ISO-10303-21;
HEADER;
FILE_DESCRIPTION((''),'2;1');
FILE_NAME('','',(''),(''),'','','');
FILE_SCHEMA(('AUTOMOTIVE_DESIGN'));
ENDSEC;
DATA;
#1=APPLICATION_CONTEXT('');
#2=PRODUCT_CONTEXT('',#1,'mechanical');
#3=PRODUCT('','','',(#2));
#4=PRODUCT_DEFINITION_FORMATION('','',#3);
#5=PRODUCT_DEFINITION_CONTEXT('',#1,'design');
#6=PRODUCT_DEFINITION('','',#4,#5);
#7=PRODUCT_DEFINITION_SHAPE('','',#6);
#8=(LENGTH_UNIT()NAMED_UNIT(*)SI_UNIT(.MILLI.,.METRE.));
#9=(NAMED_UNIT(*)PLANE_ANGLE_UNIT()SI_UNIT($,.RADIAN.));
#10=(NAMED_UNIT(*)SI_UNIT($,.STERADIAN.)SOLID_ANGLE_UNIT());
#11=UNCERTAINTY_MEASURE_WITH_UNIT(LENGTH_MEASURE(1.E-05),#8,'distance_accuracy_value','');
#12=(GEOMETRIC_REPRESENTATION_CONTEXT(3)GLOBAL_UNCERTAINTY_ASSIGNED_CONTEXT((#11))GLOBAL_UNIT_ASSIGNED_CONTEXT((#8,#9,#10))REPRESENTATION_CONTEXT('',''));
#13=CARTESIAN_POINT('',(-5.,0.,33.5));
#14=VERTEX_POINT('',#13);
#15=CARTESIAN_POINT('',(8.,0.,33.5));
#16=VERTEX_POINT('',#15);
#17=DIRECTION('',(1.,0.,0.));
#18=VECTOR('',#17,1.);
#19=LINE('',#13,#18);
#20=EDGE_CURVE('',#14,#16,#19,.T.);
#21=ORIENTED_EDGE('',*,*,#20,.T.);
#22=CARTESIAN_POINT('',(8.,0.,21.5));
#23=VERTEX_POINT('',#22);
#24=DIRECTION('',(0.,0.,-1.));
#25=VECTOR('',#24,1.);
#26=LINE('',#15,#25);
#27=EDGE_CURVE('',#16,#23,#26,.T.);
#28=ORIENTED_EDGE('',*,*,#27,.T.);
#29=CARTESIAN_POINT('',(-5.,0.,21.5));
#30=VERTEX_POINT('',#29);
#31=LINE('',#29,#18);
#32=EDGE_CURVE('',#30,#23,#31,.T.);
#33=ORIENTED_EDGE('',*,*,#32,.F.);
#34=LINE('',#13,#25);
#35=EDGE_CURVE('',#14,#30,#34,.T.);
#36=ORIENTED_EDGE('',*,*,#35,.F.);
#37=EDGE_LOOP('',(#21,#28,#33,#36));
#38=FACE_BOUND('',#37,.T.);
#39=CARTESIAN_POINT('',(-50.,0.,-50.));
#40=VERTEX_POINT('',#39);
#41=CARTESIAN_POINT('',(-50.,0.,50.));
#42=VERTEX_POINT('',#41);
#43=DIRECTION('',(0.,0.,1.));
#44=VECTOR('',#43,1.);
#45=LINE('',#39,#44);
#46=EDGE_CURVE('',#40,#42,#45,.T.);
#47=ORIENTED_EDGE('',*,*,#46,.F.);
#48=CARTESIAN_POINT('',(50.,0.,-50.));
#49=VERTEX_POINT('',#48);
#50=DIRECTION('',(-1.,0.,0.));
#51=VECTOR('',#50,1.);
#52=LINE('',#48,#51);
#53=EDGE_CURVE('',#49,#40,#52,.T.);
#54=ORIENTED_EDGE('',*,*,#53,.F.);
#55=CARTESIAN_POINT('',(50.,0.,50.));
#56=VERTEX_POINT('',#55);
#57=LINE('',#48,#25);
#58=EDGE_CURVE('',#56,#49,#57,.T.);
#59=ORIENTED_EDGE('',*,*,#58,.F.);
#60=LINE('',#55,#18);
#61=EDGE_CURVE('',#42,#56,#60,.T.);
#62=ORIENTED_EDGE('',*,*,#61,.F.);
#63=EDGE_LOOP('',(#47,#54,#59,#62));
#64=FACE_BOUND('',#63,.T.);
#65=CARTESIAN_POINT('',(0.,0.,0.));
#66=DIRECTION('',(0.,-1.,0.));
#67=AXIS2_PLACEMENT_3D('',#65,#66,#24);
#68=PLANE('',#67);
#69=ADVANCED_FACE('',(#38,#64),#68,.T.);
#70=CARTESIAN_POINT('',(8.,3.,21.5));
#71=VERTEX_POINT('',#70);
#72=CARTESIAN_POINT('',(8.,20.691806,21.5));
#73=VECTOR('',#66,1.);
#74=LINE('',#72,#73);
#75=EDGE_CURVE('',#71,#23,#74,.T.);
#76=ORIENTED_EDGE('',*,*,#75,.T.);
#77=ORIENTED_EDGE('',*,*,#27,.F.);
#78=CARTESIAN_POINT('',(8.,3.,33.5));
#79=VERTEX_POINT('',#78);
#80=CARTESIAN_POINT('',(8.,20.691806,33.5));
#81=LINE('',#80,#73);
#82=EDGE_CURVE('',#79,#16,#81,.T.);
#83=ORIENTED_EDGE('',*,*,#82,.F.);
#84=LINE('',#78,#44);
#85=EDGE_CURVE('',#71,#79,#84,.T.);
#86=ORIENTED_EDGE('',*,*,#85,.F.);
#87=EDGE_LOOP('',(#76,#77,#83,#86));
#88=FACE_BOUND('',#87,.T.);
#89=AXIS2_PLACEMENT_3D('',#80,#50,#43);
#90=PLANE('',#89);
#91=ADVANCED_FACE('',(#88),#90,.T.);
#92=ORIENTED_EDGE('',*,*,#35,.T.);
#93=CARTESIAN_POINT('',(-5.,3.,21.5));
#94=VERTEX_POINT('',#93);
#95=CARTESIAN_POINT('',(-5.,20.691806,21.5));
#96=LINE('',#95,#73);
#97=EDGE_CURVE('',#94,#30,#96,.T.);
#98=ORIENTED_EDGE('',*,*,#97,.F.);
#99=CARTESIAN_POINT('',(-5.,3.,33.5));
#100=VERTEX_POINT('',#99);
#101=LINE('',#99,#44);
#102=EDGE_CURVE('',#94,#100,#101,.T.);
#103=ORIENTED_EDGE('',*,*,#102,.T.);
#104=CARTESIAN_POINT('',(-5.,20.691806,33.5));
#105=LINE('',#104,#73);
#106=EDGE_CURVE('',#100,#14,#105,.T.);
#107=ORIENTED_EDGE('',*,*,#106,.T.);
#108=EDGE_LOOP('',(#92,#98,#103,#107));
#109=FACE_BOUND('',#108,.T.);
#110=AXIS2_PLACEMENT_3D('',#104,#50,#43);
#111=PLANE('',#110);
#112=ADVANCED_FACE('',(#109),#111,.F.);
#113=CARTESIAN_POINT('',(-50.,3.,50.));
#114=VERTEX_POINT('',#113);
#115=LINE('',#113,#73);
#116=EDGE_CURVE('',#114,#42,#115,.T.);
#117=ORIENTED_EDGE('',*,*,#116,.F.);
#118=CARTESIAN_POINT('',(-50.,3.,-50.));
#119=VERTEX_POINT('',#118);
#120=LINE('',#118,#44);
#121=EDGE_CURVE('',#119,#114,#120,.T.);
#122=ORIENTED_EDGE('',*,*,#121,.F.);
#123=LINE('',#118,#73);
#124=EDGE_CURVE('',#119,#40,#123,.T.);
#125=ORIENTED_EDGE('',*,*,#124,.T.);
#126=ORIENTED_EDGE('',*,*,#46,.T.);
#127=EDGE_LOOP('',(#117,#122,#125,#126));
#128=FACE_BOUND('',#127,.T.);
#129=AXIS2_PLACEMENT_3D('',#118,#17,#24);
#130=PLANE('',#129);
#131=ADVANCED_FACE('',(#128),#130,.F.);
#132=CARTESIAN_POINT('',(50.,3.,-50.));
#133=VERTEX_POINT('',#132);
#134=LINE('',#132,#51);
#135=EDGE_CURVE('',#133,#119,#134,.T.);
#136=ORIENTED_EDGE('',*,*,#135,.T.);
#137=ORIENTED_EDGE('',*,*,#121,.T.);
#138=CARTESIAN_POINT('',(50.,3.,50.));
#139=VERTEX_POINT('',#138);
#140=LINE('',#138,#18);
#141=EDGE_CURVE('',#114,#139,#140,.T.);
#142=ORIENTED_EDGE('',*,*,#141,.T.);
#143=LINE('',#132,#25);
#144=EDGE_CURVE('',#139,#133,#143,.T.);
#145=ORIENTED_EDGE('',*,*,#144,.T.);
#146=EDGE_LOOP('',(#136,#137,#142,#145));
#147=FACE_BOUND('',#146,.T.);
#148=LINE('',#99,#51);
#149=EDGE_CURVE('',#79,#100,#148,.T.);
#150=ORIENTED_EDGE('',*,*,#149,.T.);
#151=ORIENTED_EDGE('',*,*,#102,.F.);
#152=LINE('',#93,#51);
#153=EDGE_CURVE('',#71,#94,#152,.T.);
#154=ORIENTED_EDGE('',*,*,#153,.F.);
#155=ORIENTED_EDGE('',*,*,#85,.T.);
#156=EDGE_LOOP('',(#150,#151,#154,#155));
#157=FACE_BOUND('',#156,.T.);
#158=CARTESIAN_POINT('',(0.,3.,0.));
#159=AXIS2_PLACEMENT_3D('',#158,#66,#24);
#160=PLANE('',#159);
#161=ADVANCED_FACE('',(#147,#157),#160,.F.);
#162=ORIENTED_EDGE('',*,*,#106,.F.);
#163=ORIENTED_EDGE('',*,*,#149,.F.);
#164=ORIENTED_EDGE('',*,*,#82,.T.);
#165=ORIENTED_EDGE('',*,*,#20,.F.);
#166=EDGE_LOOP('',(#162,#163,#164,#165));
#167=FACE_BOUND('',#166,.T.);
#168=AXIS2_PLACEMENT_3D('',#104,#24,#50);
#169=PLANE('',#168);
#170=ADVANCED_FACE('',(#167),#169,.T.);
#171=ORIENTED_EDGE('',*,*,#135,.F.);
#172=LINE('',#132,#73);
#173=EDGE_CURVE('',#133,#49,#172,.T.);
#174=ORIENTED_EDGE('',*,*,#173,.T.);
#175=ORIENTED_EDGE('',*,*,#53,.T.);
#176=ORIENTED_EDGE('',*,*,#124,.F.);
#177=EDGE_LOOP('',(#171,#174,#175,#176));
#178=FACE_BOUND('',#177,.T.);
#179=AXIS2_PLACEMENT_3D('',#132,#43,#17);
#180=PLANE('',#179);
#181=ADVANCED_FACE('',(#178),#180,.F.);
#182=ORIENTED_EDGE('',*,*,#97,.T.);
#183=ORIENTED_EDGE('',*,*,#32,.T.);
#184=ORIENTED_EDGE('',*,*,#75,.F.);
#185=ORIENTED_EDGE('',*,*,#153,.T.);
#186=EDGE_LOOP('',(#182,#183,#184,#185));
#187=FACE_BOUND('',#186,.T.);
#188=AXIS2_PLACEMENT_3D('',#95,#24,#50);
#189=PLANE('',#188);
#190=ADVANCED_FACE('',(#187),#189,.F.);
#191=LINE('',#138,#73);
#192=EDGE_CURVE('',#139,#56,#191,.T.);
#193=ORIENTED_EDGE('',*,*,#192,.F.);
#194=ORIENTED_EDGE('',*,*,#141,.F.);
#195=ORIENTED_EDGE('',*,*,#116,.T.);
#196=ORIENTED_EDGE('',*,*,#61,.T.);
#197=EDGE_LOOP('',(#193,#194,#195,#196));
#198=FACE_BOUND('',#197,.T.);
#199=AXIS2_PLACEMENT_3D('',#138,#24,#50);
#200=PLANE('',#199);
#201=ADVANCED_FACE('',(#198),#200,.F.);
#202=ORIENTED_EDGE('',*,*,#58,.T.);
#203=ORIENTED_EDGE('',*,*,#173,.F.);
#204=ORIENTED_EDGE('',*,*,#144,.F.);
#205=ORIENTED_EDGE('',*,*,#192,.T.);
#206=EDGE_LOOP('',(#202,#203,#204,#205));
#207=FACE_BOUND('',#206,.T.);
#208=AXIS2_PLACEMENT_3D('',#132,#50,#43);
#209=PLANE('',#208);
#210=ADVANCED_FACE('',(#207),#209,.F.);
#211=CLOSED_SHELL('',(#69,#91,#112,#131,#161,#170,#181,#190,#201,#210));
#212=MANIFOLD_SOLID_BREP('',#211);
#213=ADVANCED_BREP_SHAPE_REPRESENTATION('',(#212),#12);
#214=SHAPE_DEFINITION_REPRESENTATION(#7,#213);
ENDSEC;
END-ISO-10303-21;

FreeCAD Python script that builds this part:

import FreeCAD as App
import Part
import Sketcher
Q = App.Units.Quantity


def add_polygon(sketch, points):
    """Adds a closed chain of lines whose ends are joined by coincident constraints."""
    first, n = sketch.GeometryCount, len(points)
    for a, b in zip(points, points[1:] + points[:1]):
        sketch.addGeometry(Part.LineSegment(App.Vector(*a, 0), App.Vector(*b, 0)), False)
    for i in range(n):
        sketch.addConstraint(Sketcher.Constraint("Coincident", first + i, 2, first + (i + 1) % n, 1))

doc = App.newDocument("Part")
body = doc.addObject("PartDesign::Body", "Body")

# Sketch on XZ plane
sketch1 = body.newObject("Sketcher::SketchObject", "Sketch")
sketch1.AttachmentSupport = (doc.getObject("XZ_Plane"), [""])
sketch1.MapMode = "FlatFace"
add_polygon(sketch1, [(-50, -50), (-50, 50), (50, 50), (50, -50)])  # lines 0-3
sketch1.addConstraint([
    Sketcher.Constraint("Vertical", 0),
    Sketcher.Constraint("Horizontal", 1),
    Sketcher.Constraint("Vertical", 2),
    Sketcher.Constraint("Horizontal", 3),
    Sketcher.Constraint("Symmetric", 0, 2, 2, 2, -1, 1),
    Sketcher.Constraint("Equal", 3, 0),
    Sketcher.Constraint("DistanceX", 1, 1, 1, 2, Q("100 mm")),
])
pad1 = body.newObject("PartDesign::Pad", "Pad")
pad1.Profile = sketch1
pad1.Length = 3
pad1.Reversed = True

# Sketch on XZ plane
sketch2 = body.newObject("Sketcher::SketchObject", "Sketch001")
sketch2.AttachmentSupport = (doc.getObject("XZ_Plane"), [""])
sketch2.MapMode = "FlatFace"
add_polygon(sketch2, [(-5, 33.5), (-5, 21.5), (8, 21.5), (8, 33.5)])  # lines 0-3
sketch2.addConstraint([
    Sketcher.Constraint("Vertical", 0),
    Sketcher.Constraint("Horizontal", 1),
    Sketcher.Constraint("Vertical", 2),
    Sketcher.Constraint("Horizontal", 3),
    Sketcher.Constraint("DistanceX", 1, 1, 1, 2, Q("13 mm")),
    Sketcher.Constraint("DistanceY", 0, 2, 0, 1, Q("12 mm")),
    Sketcher.Constraint("DistanceX", 0, 2, -1, 1, Q("5 mm")),
    Sketcher.Constraint("DistanceY", -1, 1, 0, 2, Q("21.5 mm")),
])
pocket1 = body.newObject("PartDesign::Pocket", "Pocket")
pocket1.Profile = sketch2
pocket1.Length = 3

doc.recompute()
